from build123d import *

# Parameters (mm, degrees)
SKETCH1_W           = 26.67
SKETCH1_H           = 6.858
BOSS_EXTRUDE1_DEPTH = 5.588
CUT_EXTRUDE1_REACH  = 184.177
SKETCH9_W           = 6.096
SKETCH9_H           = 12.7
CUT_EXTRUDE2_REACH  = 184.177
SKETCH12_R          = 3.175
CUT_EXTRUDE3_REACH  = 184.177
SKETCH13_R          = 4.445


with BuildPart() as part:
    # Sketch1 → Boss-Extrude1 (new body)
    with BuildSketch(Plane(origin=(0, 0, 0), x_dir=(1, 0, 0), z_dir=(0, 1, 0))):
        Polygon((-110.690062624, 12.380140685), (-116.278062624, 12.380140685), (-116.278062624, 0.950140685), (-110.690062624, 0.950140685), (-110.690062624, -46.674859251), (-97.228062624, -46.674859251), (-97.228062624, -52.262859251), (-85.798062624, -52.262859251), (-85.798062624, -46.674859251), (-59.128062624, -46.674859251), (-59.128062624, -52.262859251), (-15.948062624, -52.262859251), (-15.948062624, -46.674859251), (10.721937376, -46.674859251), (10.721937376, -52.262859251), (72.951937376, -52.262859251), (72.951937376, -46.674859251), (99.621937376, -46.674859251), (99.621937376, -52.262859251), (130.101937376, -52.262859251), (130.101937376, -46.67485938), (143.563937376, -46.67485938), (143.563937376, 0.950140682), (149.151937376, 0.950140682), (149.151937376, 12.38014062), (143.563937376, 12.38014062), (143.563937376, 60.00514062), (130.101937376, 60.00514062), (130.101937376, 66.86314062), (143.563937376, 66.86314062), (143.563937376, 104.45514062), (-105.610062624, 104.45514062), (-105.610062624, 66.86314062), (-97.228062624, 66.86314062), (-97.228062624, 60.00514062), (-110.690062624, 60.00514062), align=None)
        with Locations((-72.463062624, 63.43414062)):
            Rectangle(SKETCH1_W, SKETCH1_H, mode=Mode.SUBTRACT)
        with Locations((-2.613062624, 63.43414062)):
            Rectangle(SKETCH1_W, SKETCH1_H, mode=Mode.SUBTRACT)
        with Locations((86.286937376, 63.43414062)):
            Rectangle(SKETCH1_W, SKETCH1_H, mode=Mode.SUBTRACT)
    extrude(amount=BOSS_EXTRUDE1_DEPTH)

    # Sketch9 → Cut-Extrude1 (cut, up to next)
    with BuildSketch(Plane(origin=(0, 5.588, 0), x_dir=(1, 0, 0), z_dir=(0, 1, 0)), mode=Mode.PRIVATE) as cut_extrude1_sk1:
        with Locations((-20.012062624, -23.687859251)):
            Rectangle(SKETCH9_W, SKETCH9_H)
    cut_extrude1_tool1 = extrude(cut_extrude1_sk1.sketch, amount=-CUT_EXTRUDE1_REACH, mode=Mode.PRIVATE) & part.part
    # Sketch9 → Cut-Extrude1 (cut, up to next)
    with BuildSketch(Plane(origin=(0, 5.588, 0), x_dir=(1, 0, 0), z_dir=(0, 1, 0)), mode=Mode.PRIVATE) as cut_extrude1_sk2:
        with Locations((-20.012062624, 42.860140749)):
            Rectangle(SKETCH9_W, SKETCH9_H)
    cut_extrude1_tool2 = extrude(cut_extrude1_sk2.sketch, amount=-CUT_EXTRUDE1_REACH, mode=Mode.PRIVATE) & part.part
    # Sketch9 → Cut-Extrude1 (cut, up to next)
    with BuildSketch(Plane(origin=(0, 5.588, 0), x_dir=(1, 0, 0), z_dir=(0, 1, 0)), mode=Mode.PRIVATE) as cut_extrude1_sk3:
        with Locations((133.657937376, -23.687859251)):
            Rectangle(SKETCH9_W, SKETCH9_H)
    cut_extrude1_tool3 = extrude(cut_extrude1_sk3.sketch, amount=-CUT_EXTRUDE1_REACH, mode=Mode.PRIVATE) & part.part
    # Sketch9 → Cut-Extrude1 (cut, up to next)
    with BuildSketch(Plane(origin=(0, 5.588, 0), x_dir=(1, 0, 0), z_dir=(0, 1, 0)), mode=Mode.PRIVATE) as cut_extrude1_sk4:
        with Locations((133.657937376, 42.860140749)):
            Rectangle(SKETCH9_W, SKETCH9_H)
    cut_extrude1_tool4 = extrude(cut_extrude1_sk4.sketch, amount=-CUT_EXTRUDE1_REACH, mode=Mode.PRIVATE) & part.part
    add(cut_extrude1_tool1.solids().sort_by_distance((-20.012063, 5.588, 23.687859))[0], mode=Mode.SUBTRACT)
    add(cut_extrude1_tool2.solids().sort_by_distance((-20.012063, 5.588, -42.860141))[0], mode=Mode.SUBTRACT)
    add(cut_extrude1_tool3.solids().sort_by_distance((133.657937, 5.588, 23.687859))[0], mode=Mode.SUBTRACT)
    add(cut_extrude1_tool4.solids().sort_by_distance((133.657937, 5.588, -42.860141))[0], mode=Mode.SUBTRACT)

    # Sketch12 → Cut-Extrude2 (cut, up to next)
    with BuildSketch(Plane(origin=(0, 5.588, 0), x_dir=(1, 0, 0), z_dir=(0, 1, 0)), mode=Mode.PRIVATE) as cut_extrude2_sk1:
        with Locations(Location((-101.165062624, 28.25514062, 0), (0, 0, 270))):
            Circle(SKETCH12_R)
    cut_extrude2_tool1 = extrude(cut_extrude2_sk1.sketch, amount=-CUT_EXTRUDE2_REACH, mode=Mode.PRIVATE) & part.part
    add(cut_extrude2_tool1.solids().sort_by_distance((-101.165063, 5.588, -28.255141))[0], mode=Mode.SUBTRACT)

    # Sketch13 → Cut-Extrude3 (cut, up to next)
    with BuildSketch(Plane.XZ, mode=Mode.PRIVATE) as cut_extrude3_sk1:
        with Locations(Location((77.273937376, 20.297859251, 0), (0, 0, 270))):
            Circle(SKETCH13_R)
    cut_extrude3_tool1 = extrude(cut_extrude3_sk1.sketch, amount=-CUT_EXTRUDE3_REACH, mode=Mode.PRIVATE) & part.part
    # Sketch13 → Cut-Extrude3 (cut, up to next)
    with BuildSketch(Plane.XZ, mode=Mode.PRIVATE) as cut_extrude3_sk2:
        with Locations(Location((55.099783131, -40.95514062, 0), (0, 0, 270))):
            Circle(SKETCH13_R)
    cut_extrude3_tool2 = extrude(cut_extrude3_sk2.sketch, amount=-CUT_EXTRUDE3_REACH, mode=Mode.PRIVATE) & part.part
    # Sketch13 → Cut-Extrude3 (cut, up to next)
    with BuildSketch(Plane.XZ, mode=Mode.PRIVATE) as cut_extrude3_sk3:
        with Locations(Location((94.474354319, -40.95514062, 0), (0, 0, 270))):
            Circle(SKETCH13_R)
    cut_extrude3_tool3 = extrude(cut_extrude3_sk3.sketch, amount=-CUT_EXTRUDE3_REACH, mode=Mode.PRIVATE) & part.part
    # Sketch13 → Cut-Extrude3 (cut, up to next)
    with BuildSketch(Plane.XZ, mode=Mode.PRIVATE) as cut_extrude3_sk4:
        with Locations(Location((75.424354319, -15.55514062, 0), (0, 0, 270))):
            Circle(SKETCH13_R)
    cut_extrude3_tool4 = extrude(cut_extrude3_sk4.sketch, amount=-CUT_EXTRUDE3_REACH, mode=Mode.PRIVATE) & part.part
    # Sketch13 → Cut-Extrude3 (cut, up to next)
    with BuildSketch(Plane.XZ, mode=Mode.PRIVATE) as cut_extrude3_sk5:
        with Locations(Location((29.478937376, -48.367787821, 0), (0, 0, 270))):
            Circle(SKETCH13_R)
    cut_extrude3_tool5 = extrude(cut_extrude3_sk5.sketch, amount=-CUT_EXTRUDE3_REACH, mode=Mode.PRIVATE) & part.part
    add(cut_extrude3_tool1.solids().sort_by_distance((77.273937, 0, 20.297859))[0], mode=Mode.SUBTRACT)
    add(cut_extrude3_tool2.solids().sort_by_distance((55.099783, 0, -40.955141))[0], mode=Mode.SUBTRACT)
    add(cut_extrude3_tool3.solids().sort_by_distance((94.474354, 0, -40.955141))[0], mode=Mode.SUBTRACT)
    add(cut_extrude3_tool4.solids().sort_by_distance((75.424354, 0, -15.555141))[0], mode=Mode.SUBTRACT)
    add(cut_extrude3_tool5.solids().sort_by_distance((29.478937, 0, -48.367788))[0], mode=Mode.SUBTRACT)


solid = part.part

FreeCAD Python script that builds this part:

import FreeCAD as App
import Part
import Sketcher

V = App.Vector
Q = App.Units.Quantity


def add_polygon(sketch, points):
    """Adds a closed chain of lines whose ends are joined by coincident constraints."""
    first, n = sketch.GeometryCount, len(points)
    for a, b in zip(points, points[1:] + points[:1]):
        sketch.addGeometry(Part.LineSegment(App.Vector(*a, 0), App.Vector(*b, 0)), False)
    for i in range(n):
        sketch.addConstraint(Sketcher.Constraint("Coincident", first + i, 2, first + (i + 1) % n, 1))

doc = App.newDocument("Part")
body = doc.addObject("PartDesign::Body", "Body")

sketch1 = body.newObject("Sketcher::SketchObject", "Sketch")
sketch1.AttachmentSupport = (doc.getObject("XZ_Plane"), [""])
sketch1.MapMode = "FlatFace"
add_polygon(sketch1, [(-111, -12), (-116, -12), (-116, -1), (-111, -1), (-111, 47), (-97, 47), (-97, 52), (-86, 52), (-86, 47), (-59, 47), (-59, 52), (-16, 52), (-16, 47), (11, 47), (11, 52), (73, 52), (73, 47), (100, 47), (100, 52), (130, 52), (130, 47), (144, 47), (144, -1), (149, -1), (149, -12), (144, -12), (144, -60), (130, -60), (130, -67), (144, -67), (144, -104), (-106, -104), (-106, -67), (-97, -67), (-97, -60), (-111, -60)])
add_polygon(sketch1, [(-59, -60), (-86, -60), (-86, -67), (-59, -67)])
add_polygon(sketch1, [(11, -60), (-16, -60), (-16, -67), (11, -67)])
add_polygon(sketch1, [(100, -60), (73, -60), (73, -67), (100, -67)])
sketch1.addConstraint([
    Sketcher.Constraint("Horizontal", 0),
    Sketcher.Constraint("Vertical", 1),
    Sketcher.Constraint("Horizontal", 2),
    Sketcher.Constraint("Vertical", 3),
    Sketcher.Constraint("Horizontal", 4),
    Sketcher.Constraint("Vertical", 5),
    Sketcher.Constraint("Horizontal", 6),
    Sketcher.Constraint("Vertical", 7),
    Sketcher.Constraint("Horizontal", 8),
    Sketcher.Constraint("Vertical", 9),
    Sketcher.Constraint("Horizontal", 10),
    Sketcher.Constraint("Vertical", 11),
    Sketcher.Constraint("Horizontal", 12),
    Sketcher.Constraint("Vertical", 13),
    Sketcher.Constraint("Horizontal", 14),
    Sketcher.Constraint("Vertical", 15),
    Sketcher.Constraint("Horizontal", 16),
    Sketcher.Constraint("Vertical", 17),
    Sketcher.Constraint("Horizontal", 18),
    Sketcher.Constraint("Vertical", 19),
    Sketcher.Constraint("Horizontal", 20),
    Sketcher.Constraint("Vertical", 21),
    Sketcher.Constraint("Horizontal", 22),
    Sketcher.Constraint("Vertical", 23),
    Sketcher.Constraint("Horizontal", 24),
    Sketcher.Constraint("Vertical", 25),
    Sketcher.Constraint("Horizontal", 26),
    Sketcher.Constraint("Vertical", 27),
    Sketcher.Constraint("Horizontal", 28),
    Sketcher.Constraint("Vertical", 29),
    Sketcher.Constraint("Horizontal", 30),
    Sketcher.Constraint("Vertical", 31),
    Sketcher.Constraint("Horizontal", 32),
    Sketcher.Constraint("Vertical", 33),
    Sketcher.Constraint("Horizontal", 34),
    Sketcher.Constraint("Vertical", 35),
    Sketcher.Constraint("Horizontal", 36),
    Sketcher.Constraint("Vertical", 37),
    Sketcher.Constraint("Horizontal", 38),
    Sketcher.Constraint("Vertical", 39),
    Sketcher.Constraint("Horizontal", 40),
    Sketcher.Constraint("Vertical", 41),
    Sketcher.Constraint("Horizontal", 42),
    Sketcher.Constraint("Vertical", 43),
    Sketcher.Constraint("Horizontal", 44),
    Sketcher.Constraint("Vertical", 45),
    Sketcher.Constraint("Horizontal", 46),
    Sketcher.Constraint("Vertical", 47),
    Sketcher.Constraint("Horizontal", 4, 2, 7, 2),
    Sketcher.Constraint("Horizontal", 6, 2, 9, 2),
    Sketcher.Constraint("Horizontal", 8, 2, 11, 2),
    Sketcher.Constraint("Horizontal", 10, 2, 13, 2),
    Sketcher.Constraint("Horizontal", 12, 2, 15, 2),
    Sketcher.Constraint("Horizontal", 14, 2, 17, 2),
    Sketcher.Constraint("Horizontal", 16, 2, 19, 2),
    Sketcher.Constraint("Horizontal", 2, 2, 21, 2),
    Sketcher.Constraint("Horizontal", 0, 2, 23, 2),
    Sketcher.Constraint("Horizontal", 28, 2, 31, 2),
    Sketcher.Constraint("Horizontal", 26, 2, 33, 2),
    Sketcher.Constraint("Horizontal", 34, 2, 36, 2),
    Sketcher.Constraint("Horizontal", 32, 2, 37, 2),
    Sketcher.Constraint("Horizontal", 39, 2, 40, 2),
    Sketcher.Constraint("Horizontal", 38, 2, 41, 2),
    Sketcher.Constraint("Horizontal", 43, 2, 44, 2),
    Sketcher.Constraint("Horizontal", 42, 2, 45, 2),
    Sketcher.Constraint("Vertical", 21, 2, 24, 2),
    Sketcher.Constraint("Vertical", 19, 2, 26, 2),
    Sketcher.Constraint("Vertical", 25, 2, 28, 2),
    Sketcher.Constraint("Vertical", 5, 2, 32, 2),
    Sketcher.Constraint("Vertical", 3, 2, 34, 2),
    Sketcher.Constraint("Vertical", 7, 2, 36, 2),
    Sketcher.Constraint("Vertical", 9, 2, 38, 2),
    Sketcher.Constraint("Vertical", 11, 2, 40, 2),
    Sketcher.Constraint("Vertical", 13, 2, 42, 2),
    Sketcher.Constraint("Vertical", 15, 2, 44, 2),
    Sketcher.Constraint("Vertical", 17, 2, 46, 2),
    Sketcher.Constraint("Equal", 8, 12),
    Sketcher.Constraint("Equal", 12, 16),
    Sketcher.Constraint("Equal", 4, 20),
    Sketcher.Constraint("Equal", 2, 22),
    Sketcher.Constraint("Equal", 6, 1),
    Sketcher.Constraint("Equal", 24, 5),
    Sketcher.Constraint("Equal", 21, 25),
    Sketcher.Constraint("DistanceX", 10, 1, 10, 2, Q("1.7 in")),
    Sketcher.Constraint("DistanceX", 18, 1, 18, 2, Q("1.2 in")),
    Sketcher.Constraint("DistanceX", 0, 2, 0, 1, Q("0.22 in")),
    Sketcher.Constraint("DistanceX", 4, 1, 4, 2, Q("0.53 in")),
    Sketcher.Constraint("DistanceX", 6, 1, 6, 2, Q("0.45 in")),
    Sketcher.Constraint("DistanceX", 8, 1, 8, 2, Q("1.05 in")),
    Sketcher.Constraint("DistanceX", 14, 1, 14, 2, Q("2.45 in")),
    Sketcher.Constraint("DistanceX", 30, 2, 30, 1, Q("9.81 in")),
    Sketcher.Constraint("DistanceY", 27, 2, 27, 1, Q("0.27 in")),
    Sketcher.Constraint("DistanceY", 29, 2, 29, 1, Q("1.48 in")),
    Sketcher.Constraint("DistanceY", 25, 2, 20, 2, Q("4.2 in")),
    Sketcher.Constraint("DistanceY", 0, 2, -1, 1, Q("12.380141 mm")),
    Sketcher.Constraint("DistanceX", 0, 2, -1, 1, Q("116.278063 mm")),
])
pad1 = body.newObject("PartDesign::Pad", "Pad")
pad1.Profile = sketch1
pad1.Length = Q("0.22 in")
pad1.Reversed = True

sketch2 = body.newObject("Sketcher::SketchObject", "Sketch001")
sketch2.AttachmentSupport = (doc.getObject("XZ_Plane"), [""])
sketch2.MapMode = "FlatFace"
sketch2.AttachmentOffset = App.Placement(V(0, 0, -0.22 * 25.4), App.Rotation())
add_polygon(sketch2, [(-23, 17), (-23, 30), (-17, 30), (-17, 17)])
sketch2.addConstraint([
    Sketcher.Constraint("Vertical", 0),
    Sketcher.Constraint("Horizontal", 1),
    Sketcher.Constraint("Vertical", 2),
    Sketcher.Constraint("Horizontal", 3),
    Sketcher.Constraint("DistanceY", 0, 1, 0, 2, Q("0.5 in")),
    Sketcher.Constraint("DistanceX", 1, 1, 1, 2, Q("0.24 in")),
    Sketcher.Constraint("DistanceY", -1, 1, 0, 2, Q("30.037859 mm")),
    Sketcher.Constraint("DistanceX", 0, 2, -1, 1, Q("23.060063 mm")),
])
pocket1 = body.newObject("PartDesign::Pocket", "Pocket")
pocket1.Profile = sketch2
pocket1.Type = "UpToFirst"
pocket1.Reversed = True

sketch3 = body.newObject("Sketcher::SketchObject", "Sketch002")
sketch3.AttachmentSupport = (doc.getObject("XZ_Plane"), [""])
sketch3.MapMode = "FlatFace"
sketch3.AttachmentOffset = App.Placement(V(0, 0, -0.22 * 25.4), App.Rotation())
add_polygon(sketch3, [(-23, -49), (-23, -37), (-17, -37), (-17, -49)])
sketch3.addConstraint([
    Sketcher.Constraint("Vertical", 0),
    Sketcher.Constraint("Horizontal", 1),
    Sketcher.Constraint("Vertical", 2),
    Sketcher.Constraint("Horizontal", 3),
    Sketcher.Constraint("DistanceY", 0, 1, 0, 2, Q("0.5 in")),
    Sketcher.Constraint("DistanceX", 1, 1, 1, 2, Q("0.24 in")),
    Sketcher.Constraint("DistanceY", 0, 2, -1, 1, Q("36.510141 mm")),
    Sketcher.Constraint("DistanceX", 0, 2, -1, 1, Q("23.060063 mm")),
])
pocket2 = body.newObject("PartDesign::Pocket", "Pocket001")
pocket2.Profile = sketch3
pocket2.Type = "UpToFirst"
pocket2.Reversed = True

sketch4 = body.newObject("Sketcher::SketchObject", "Sketch003")
sketch4.AttachmentSupport = (doc.getObject("XZ_Plane"), [""])
sketch4.MapMode = "FlatFace"
sketch4.AttachmentOffset = App.Placement(V(0, 0, -0.22 * 25.4), App.Rotation())
add_polygon(sketch4, [(131, 17), (131, 30), (137, 30), (137, 17)])
sketch4.addConstraint([
    Sketcher.Constraint("Vertical", 0),
    Sketcher.Constraint("Horizontal", 1),
    Sketcher.Constraint("Vertical", 2),
    Sketcher.Constraint("Horizontal", 3),
    Sketcher.Constraint("DistanceY", 0, 1, 0, 2, Q("0.5 in")),
    Sketcher.Constraint("DistanceX", 1, 1, 1, 2, Q("0.24 in")),
    Sketcher.Constraint("DistanceY", -1, 1, 0, 2, Q("30.037859 mm")),
    Sketcher.Constraint("DistanceX", -1, 1, 0, 2, Q("130.609937 mm")),
])
pocket3 = body.newObject("PartDesign::Pocket", "Pocket002")
pocket3.Profile = sketch4
pocket3.Type = "UpToFirst"
pocket3.Reversed = True

sketch5 = body.newObject("Sketcher::SketchObject", "Sketch004")
sketch5.AttachmentSupport = (doc.getObject("XZ_Plane"), [""])
sketch5.MapMode = "FlatFace"
sketch5.AttachmentOffset = App.Placement(V(0, 0, -0.22 * 25.4), App.Rotation())
add_polygon(sketch5, [(131, -49), (131, -37), (137, -37), (137, -49)])
sketch5.addConstraint([
    Sketcher.Constraint("Vertical", 0),
    Sketcher.Constraint("Horizontal", 1),
    Sketcher.Constraint("Vertical", 2),
    Sketcher.Constraint("Horizontal", 3),
    Sketcher.Constraint("DistanceY", 0, 1, 0, 2, Q("0.5 in")),
    Sketcher.Constraint("DistanceX", 1, 1, 1, 2, Q("0.24 in")),
    Sketcher.Constraint("DistanceY", 0, 2, -1, 1, Q("36.510141 mm")),
    Sketcher.Constraint("DistanceX", -1, 1, 0, 2, Q("130.609937 mm")),
])
pocket4 = body.newObject("PartDesign::Pocket", "Pocket003")
pocket4.Profile = sketch5
pocket4.Type = "UpToFirst"
pocket4.Reversed = True

sketch6 = body.newObject("Sketcher::SketchObject", "Sketch005")
sketch6.AttachmentSupport = (doc.getObject("XZ_Plane"), [""])
sketch6.MapMode = "FlatFace"
sketch6.AttachmentOffset = App.Placement(V(0, 0, -0.22 * 25.4), App.Rotation())
sketch6.addGeometry(Part.Circle(V(-101.2, -28.3, 0), V(0, 0, 1), 3.2), False)
sketch6.addConstraint([
    Sketcher.Constraint("Diameter", 0, Q("0.25 in")),
    Sketcher.Constraint("DistanceY", 0, 3, -1, 1, Q("28.255141 mm")),
    Sketcher.Constraint("DistanceX", 0, 3, -1, 1, Q("101.165063 mm")),
])
pocket5 = body.newObject("PartDesign::Pocket", "Pocket004")
pocket5.Profile = sketch6
pocket5.Type = "UpToFirst"
pocket5.Reversed = True

sketch7 = body.newObject("Sketcher::SketchObject", "Sketch006")
sketch7.AttachmentSupport = (doc.getObject("XZ_Plane"), [""])
sketch7.MapMode = "FlatFace"
sketch7.addGeometry(Part.Circle(V(77.3, 20.3, 0), V(0, 0, 1), 4.4), False)
sketch7.addConstraint([
    Sketcher.Constraint("Diameter", 0, Q("0.35 in")),
    Sketcher.Constraint("DistanceY", -1, 1, 0, 3, Q("20.297859 mm")),
    Sketcher.Constraint("DistanceX", -1, 1, 0, 3, Q("77.273937 mm")),
])
pocket6 = body.newObject("PartDesign::Pocket", "Pocket005")
pocket6.Profile = sketch7
pocket6.Type = "UpToFirst"

sketch8 = body.newObject("Sketcher::SketchObject", "Sketch007")
sketch8.AttachmentSupport = (doc.getObject("XZ_Plane"), [""])
sketch8.MapMode = "FlatFace"
sketch8.addGeometry(Part.Circle(V(55.1, -41, 0), V(0, 0, 1), 4.4), False)
sketch8.addConstraint([
    Sketcher.Constraint("Diameter", 0, Q("0.35 in")),
    Sketcher.Constraint("DistanceY", 0, 3, -1, 1, Q("40.955141 mm")),
    Sketcher.Constraint("DistanceX", -1, 1, 0, 3, Q("55.099783 mm")),
])
pocket7 = body.newObject("PartDesign::Pocket", "Pocket006")
pocket7.Profile = sketch8
pocket7.Type = "UpToFirst"

sketch9 = body.newObject("Sketcher::SketchObject", "Sketch008")
sketch9.AttachmentSupport = (doc.getObject("XZ_Plane"), [""])
sketch9.MapMode = "FlatFace"
sketch9.addGeometry(Part.Circle(V(94.5, -41, 0), V(0, 0, 1), 4.4), False)
sketch9.addConstraint([
    Sketcher.Constraint("Diameter", 0, Q("0.35 in")),
    Sketcher.Constraint("DistanceY", 0, 3, -1, 1, Q("40.955141 mm")),
    Sketcher.Constraint("DistanceX", -1, 1, 0, 3, Q("94.474354 mm")),
])
pocket8 = body.newObject("PartDesign::Pocket", "Pocket007")
pocket8.Profile = sketch9
pocket8.Type = "UpToFirst"

sketch10 = body.newObject("Sketcher::SketchObject", "Sketch009")
sketch10.AttachmentSupport = (doc.getObject("XZ_Plane"), [""])
sketch10.MapMode = "FlatFace"
sketch10.addGeometry(Part.Circle(V(75.4, -15.6, 0), V(0, 0, 1), 4.4), False)
sketch10.addConstraint([
    Sketcher.Constraint("Diameter", 0, Q("0.35 in")),
    Sketcher.Constraint("DistanceY", 0, 3, -1, 1, Q("15.555141 mm")),
    Sketcher.Constraint("DistanceX", -1, 1, 0, 3, Q("75.424354 mm")),
])
pocket9 = body.newObject("PartDesign::Pocket", "Pocket008")
pocket9.Profile = sketch10
pocket9.Type = "UpToFirst"

sketch11 = body.newObject("Sketcher::SketchObject", "Sketch010")
sketch11.AttachmentSupport = (doc.getObject("XZ_Plane"), [""])
sketch11.MapMode = "FlatFace"
sketch11.addGeometry(Part.Circle(V(29.5, -48.4, 0), V(0, 0, 1), 4.4), False)
sketch11.addConstraint([
    Sketcher.Constraint("Diameter", 0, Q("0.35 in")),
    Sketcher.Constraint("DistanceX", -1, 1, 0, 3, Q("29.478937 mm")),
    Sketcher.Constraint("DistanceY", 0, 3, -1, 1, Q("48.367788 mm")),
])
pocket10 = body.newObject("PartDesign::Pocket", "Pocket009")
pocket10.Profile = sketch11
pocket10.Type = "UpToFirst"

doc.recompute()
